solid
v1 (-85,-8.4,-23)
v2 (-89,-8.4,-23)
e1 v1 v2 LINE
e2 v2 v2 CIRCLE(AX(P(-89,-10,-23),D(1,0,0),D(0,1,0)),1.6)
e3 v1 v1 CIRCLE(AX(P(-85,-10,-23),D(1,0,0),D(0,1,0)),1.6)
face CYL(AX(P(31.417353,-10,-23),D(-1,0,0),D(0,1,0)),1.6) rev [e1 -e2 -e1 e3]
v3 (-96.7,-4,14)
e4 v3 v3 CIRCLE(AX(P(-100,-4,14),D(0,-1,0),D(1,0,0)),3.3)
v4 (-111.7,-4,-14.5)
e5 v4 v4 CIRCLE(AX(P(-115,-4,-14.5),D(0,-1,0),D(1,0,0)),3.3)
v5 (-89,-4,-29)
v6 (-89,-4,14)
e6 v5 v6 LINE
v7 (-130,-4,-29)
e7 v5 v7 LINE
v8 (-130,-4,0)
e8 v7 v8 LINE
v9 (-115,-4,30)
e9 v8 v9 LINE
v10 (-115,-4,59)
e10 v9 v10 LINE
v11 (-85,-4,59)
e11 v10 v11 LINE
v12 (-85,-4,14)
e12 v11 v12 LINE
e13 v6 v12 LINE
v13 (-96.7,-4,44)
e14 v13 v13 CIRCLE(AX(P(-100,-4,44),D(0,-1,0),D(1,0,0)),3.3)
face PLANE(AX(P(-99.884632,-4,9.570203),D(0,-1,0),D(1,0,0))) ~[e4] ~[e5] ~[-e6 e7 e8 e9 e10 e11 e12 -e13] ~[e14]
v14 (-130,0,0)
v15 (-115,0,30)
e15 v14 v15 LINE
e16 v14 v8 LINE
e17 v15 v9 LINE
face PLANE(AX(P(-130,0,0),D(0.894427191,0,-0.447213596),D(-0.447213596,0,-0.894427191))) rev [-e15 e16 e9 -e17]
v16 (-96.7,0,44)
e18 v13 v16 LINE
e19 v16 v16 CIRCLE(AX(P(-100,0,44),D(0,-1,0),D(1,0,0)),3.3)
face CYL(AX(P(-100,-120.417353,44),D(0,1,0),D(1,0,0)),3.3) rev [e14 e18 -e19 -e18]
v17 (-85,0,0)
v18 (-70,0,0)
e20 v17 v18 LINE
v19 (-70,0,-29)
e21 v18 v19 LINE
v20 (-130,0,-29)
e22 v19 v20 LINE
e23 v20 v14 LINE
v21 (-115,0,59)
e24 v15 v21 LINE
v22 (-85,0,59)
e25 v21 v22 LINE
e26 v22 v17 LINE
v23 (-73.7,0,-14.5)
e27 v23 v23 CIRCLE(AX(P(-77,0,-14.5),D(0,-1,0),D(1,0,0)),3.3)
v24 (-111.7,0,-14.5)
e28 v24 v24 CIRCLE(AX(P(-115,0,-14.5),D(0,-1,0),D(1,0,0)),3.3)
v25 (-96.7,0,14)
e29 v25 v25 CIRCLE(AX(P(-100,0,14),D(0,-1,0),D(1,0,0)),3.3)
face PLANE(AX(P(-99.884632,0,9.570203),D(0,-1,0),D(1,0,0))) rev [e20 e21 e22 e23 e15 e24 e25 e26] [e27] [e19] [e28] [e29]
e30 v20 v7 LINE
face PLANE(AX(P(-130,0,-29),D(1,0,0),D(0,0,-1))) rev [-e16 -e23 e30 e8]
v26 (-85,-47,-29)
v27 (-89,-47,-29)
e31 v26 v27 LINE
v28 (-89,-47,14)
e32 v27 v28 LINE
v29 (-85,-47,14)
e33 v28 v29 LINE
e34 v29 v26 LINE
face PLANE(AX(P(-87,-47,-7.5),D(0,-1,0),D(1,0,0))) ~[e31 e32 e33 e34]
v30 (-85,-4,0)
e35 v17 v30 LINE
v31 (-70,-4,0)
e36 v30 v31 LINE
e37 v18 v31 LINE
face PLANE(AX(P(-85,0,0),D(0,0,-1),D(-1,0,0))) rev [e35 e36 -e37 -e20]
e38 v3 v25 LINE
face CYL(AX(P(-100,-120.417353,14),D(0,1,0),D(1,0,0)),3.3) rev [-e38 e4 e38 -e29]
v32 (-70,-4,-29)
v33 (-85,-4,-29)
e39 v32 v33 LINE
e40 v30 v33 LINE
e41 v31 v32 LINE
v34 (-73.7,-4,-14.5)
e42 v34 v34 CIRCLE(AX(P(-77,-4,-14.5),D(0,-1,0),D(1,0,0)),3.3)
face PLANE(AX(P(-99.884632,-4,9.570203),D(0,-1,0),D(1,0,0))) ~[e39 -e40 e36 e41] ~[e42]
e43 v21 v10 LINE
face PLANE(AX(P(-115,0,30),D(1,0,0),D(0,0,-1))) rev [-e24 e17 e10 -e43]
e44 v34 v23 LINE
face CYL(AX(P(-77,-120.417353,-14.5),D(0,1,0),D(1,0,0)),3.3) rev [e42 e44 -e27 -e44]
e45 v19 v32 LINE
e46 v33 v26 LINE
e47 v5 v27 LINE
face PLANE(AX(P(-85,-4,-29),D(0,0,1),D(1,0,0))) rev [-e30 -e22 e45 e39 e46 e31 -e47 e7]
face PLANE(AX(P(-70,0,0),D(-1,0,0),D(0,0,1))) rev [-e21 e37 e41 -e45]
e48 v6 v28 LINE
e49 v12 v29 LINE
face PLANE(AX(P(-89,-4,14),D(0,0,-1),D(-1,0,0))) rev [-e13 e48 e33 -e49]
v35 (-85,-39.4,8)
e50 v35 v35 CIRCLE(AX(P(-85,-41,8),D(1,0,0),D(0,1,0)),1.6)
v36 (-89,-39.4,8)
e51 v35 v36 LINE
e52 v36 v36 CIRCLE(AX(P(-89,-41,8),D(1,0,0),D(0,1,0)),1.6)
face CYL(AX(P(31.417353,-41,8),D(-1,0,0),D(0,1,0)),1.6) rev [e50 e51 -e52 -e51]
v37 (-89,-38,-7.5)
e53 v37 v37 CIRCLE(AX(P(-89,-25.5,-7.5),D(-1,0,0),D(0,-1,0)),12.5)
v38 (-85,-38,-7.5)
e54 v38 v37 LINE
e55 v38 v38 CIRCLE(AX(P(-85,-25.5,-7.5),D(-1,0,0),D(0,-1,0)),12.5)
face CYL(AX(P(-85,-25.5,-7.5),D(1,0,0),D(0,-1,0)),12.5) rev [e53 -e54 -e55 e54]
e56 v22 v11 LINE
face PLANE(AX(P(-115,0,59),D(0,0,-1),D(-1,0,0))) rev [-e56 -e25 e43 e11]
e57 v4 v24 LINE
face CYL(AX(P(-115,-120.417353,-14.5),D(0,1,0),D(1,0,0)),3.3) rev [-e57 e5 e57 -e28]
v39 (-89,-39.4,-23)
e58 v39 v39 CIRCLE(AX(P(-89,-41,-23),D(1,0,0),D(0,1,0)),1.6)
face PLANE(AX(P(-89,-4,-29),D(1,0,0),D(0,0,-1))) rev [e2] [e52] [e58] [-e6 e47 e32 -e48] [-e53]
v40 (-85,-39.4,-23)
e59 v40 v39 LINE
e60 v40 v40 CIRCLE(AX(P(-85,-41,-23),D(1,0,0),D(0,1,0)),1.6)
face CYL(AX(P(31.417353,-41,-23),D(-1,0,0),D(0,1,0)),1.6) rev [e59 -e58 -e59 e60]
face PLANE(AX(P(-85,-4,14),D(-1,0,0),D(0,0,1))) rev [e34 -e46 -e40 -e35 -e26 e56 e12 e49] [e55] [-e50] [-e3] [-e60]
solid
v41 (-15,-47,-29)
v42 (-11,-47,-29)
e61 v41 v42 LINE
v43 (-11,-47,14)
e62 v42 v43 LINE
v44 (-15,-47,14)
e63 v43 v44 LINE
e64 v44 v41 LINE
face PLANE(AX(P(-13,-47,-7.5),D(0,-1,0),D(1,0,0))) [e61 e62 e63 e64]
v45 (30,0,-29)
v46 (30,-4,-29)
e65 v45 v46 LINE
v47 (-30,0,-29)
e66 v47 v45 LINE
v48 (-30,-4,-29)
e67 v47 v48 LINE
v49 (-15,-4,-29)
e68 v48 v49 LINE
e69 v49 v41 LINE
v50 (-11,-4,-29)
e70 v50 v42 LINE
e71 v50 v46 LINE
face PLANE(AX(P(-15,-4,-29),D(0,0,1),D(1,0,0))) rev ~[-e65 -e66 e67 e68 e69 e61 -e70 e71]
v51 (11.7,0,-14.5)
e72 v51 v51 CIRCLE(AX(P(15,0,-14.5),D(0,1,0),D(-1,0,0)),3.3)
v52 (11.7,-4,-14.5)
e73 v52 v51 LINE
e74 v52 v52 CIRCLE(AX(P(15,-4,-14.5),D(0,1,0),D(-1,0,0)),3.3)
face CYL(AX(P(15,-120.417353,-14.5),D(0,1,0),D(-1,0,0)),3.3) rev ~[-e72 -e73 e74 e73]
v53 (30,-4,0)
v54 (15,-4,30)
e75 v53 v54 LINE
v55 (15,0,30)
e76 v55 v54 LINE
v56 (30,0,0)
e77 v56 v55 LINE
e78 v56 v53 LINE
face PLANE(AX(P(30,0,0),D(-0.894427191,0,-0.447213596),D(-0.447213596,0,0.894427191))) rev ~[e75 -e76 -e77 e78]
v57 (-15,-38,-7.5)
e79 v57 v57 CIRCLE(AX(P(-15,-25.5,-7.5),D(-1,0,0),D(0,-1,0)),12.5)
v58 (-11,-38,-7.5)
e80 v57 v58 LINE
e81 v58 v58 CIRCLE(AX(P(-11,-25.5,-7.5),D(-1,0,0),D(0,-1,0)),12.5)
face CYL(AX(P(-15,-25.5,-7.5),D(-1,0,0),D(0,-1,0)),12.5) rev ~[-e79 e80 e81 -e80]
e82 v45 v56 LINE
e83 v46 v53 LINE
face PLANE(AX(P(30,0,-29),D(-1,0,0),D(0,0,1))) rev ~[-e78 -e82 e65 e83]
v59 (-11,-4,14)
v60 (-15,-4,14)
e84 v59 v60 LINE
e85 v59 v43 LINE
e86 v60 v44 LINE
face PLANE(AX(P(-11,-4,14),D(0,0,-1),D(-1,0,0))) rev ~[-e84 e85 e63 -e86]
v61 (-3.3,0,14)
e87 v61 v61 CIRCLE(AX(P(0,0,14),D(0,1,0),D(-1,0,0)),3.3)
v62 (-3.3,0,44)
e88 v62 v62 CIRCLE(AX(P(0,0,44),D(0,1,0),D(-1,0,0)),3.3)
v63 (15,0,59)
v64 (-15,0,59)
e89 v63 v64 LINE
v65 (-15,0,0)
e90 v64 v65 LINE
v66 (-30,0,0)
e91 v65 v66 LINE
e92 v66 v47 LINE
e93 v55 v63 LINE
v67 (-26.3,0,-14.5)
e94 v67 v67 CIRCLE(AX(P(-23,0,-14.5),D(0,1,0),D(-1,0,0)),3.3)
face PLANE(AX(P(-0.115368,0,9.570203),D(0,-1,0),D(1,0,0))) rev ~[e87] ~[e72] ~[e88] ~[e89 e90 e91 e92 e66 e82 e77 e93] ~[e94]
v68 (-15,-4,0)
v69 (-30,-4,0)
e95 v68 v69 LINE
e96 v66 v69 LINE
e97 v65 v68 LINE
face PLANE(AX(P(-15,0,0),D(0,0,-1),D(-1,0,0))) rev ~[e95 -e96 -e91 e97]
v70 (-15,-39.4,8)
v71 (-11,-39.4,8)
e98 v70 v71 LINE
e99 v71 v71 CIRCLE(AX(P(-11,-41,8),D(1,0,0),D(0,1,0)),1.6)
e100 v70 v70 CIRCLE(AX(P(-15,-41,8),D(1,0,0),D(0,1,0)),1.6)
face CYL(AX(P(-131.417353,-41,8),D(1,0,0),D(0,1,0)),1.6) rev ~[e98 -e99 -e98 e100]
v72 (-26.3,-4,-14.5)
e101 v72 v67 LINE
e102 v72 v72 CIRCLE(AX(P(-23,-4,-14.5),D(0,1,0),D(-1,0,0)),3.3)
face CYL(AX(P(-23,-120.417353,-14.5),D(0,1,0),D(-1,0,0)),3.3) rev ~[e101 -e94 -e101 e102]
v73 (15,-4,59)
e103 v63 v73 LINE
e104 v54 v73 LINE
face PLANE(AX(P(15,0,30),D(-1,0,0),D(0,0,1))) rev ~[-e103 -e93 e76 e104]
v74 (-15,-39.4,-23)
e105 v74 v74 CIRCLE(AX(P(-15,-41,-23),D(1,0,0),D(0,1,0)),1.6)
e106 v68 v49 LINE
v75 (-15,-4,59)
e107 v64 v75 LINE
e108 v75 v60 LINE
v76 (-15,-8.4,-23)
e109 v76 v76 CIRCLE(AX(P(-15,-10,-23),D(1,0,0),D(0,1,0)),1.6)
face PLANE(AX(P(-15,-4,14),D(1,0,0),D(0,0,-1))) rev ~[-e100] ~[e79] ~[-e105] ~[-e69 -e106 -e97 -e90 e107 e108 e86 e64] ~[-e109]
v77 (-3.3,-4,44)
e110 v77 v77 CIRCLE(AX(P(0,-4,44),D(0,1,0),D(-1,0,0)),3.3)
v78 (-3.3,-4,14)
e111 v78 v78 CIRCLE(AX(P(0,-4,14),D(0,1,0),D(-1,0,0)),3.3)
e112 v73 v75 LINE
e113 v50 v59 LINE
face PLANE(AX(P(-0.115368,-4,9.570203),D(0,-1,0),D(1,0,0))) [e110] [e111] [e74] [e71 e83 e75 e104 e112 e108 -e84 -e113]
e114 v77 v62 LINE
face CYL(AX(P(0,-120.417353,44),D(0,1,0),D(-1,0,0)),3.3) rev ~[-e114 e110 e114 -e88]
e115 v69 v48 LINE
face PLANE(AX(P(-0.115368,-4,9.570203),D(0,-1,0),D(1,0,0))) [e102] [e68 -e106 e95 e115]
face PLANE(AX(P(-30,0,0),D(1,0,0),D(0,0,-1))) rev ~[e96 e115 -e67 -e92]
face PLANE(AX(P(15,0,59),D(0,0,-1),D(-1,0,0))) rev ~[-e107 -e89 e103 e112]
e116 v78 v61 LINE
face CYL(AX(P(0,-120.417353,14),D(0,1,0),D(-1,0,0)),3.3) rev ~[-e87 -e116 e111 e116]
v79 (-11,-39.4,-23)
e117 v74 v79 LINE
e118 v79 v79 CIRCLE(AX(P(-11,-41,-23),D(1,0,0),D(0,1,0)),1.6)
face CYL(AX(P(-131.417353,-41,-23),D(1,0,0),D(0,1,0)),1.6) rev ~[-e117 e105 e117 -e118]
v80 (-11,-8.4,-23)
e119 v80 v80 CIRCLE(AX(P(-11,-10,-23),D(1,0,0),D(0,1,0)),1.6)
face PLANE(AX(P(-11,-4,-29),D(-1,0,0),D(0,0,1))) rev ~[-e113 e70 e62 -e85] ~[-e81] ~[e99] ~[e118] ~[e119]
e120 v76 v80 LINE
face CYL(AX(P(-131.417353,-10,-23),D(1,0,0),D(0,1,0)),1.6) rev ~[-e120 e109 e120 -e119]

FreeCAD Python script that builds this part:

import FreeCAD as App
import Part
import Sketcher

V = App.Vector
Q = App.Units.Quantity


def add_polygon(sketch, points):
    """Adds a closed chain of lines whose ends are joined by coincident constraints."""
    first, n = sketch.GeometryCount, len(points)
    for a, b in zip(points, points[1:] + points[:1]):
        sketch.addGeometry(Part.LineSegment(App.Vector(*a, 0), App.Vector(*b, 0)), False)
    for i in range(n):
        sketch.addConstraint(Sketcher.Constraint("Coincident", first + i, 2, first + (i + 1) % n, 1))

doc = App.newDocument("Part")
body = doc.addObject("PartDesign::Body", "Body")

sketch1 = body.newObject("Sketcher::SketchObject", "Sketch")
sketch1.AttachmentSupport = (doc.getObject("XZ_Plane"), [""])
sketch1.MapMode = "FlatFace"
add_polygon(sketch1, [(-15, 0), (-30, 0), (-30, -29), (30, -29), (30, 0), (15, 30), (15, 59), (-15, 59)])
sketch1.addConstraint(Sketcher.Constraint("Horizontal", 0))
sketch1.addConstraint(Sketcher.Constraint("Vertical", 1))
sketch1.addConstraint(Sketcher.Constraint("Horizontal", 2))
sketch1.addConstraint(Sketcher.Constraint("Vertical", 3))
sketch1.addConstraint(Sketcher.Constraint("Vertical", 5))
sketch1.addConstraint(Sketcher.Constraint("Horizontal", 6))
sketch1.addConstraint(Sketcher.Constraint("Vertical", 7))
sketch1.addConstraint(Sketcher.Constraint("Symmetric", 0, 2, 3, 2, -1, 1))
sketch1.addConstraint(Sketcher.Constraint("PointOnObject", 0, 2, -1))
sketch1.addConstraint(Sketcher.Constraint("Equal", 3, 5))
sketch1.addConstraint(Sketcher.Constraint("DistanceX", 0, 2, 0, 1, Q("15 mm")))
sketch1.addConstraint(Sketcher.Constraint("DistanceX", 2, 1, 2, 2, Q("60 mm")))
sketch1.addConstraint(Sketcher.Constraint("DistanceX", 6, 2, 6, 1, Q("30 mm")))
sketch1.addConstraint(Sketcher.Constraint("DistanceY", 1, 2, 1, 1, Q("29 mm")))
sketch1.addConstraint(Sketcher.Constraint("DistanceY", 7, 2, 7, 1, Q("59 mm")))
pad1 = body.newObject("PartDesign::Pad", "Pad")
pad1.Profile = sketch1
pad1.Length = 4

sketch2 = body.newObject("Sketcher::SketchObject", "Sketch001")
sketch2.AttachmentSupport = (doc.getObject("XZ_Plane"), [""])
sketch2.MapMode = "FlatFace"
sketch2.AttachmentOffset = App.Placement(V(0, 0, 4), App.Rotation())
add_polygon(sketch2, [(-11, 14), (-15, 14), (-15, -29), (-11, -29)])
sketch2.addConstraint(Sketcher.Constraint("Horizontal", 0))
sketch2.addConstraint(Sketcher.Constraint("Vertical", 1))
sketch2.addConstraint(Sketcher.Constraint("Horizontal", 2))
sketch2.addConstraint(Sketcher.Constraint("Vertical", 3))
sketch2.addConstraint(Sketcher.Constraint("DistanceX", 0, 2, 0, 1, Q("4 mm")))
sketch2.addConstraint(Sketcher.Constraint("DistanceY", 1, 2, 1, 1, Q("43 mm")))
sketch2.addConstraint(Sketcher.Constraint("DistanceX", 0, 2, -1, 1, Q("15 mm")))
sketch2.addConstraint(Sketcher.Constraint("DistanceY", -1, 1, 0, 2, Q("14 mm")))
pad2 = body.newObject("PartDesign::Pad", "Pad001")
pad2.Profile = sketch2
pad2.Length = 43

sketch3 = body.newObject("Sketcher::SketchObject", "Sketch002")
sketch3.AttachmentSupport = (doc.getObject("YZ_Plane"), [""])
sketch3.MapMode = "FlatFace"
sketch3.AttachmentOffset = App.Placement(V(0, 0, -15), App.Rotation())
sketch3.addGeometry(Part.Circle(V(-25.5, -7.5, 0), V(0, 0, 1), 12.5), False)
sketch3.addConstraint(Sketcher.Constraint("Diameter", 0, Q("25 mm")))
sketch3.addConstraint(Sketcher.Constraint("DistanceX", 0, 3, -1, 1, Q("25.5 mm")))
sketch3.addConstraint(Sketcher.Constraint("DistanceY", 0, 3, -1, 1, Q("7.5 mm")))
pocket1 = body.newObject("PartDesign::Pocket", "Pocket")
pocket1.Profile = sketch3
pocket1.Type = "ThroughAll"
pocket1.Reversed = True

sketch4 = body.newObject("Sketcher::SketchObject", "Sketch003")
sketch4.AttachmentSupport = (doc.getObject("YZ_Plane"), [""])
sketch4.MapMode = "FlatFace"
sketch4.AttachmentOffset = App.Placement(V(0, 0, -15), App.Rotation())
sketch4.addGeometry(Part.Circle(V(-41, 8, 0), V(0, 0, 1), 1.6), False)
sketch4.addGeometry(Part.Circle(V(-41, -23, 0), V(0, 0, 1), 1.6), False)
sketch4.addGeometry(Part.Circle(V(-10, -23, 0), V(0, 0, 1), 1.6), False)
sketch4.addConstraint(Sketcher.Constraint("Equal", 0, 1))
sketch4.addConstraint(Sketcher.Constraint("Equal", 1, 2))
sketch4.addConstraint(Sketcher.Constraint("Horizontal", 1, 3, 2, 3))
sketch4.addConstraint(Sketcher.Constraint("Vertical", 0, 3, 1, 3))
sketch4.addConstraint(Sketcher.Constraint("Diameter", 0, Q("3.2 mm")))
sketch4.addConstraint(Sketcher.Constraint("DistanceX", 0, 3, -1, 1, Q("41 mm")))
sketch4.addConstraint(Sketcher.Constraint("DistanceY", -1, 1, 0, 3, Q("8 mm")))
sketch4.addConstraint(Sketcher.Constraint("DistanceY", 1, 3, -1, 1, Q("23 mm")))
sketch4.addConstraint(Sketcher.Constraint("DistanceX", 2, 3, -1, 1, Q("10 mm")))
doc.recompute()
hole = body.newObject("PartDesign::Hole", "Hole")
hole.Profile = sketch4
hole.ThreadType = "None"
hole.Diameter = 3.2
hole.DepthType = "ThroughAll"
hole.Reversed = True

sketch5 = body.newObject("Sketcher::SketchObject", "Sketch004")
sketch5.AttachmentSupport = (doc.getObject("XZ_Plane"), [""])
sketch5.MapMode = "FlatFace"
sketch5.AttachmentOffset = App.Placement(V(0, 0, 4), App.Rotation())
sketch5.addGeometry(Part.Circle(V(0, 44, 0), V(0, 0, 1), 3.3), False)
sketch5.addGeometry(Part.Circle(V(15, -14.5, 0), V(0, 0, 1), 3.3), False)
sketch5.addGeometry(Part.Circle(V(-23, -14.5, 0), V(0, 0, 1), 3.3), False)
sketch5.addGeometry(Part.Circle(V(0, 14, 0), V(0, 0, 1), 3.3), False)
sketch5.addConstraint(Sketcher.Constraint("Equal", 0, 1))
sketch5.addConstraint(Sketcher.Constraint("Equal", 1, 2))
sketch5.addConstraint(Sketcher.Constraint("Equal", 2, 3))
sketch5.addConstraint(Sketcher.Constraint("PointOnObject", 0, 3, -2))
sketch5.addConstraint(Sketcher.Constraint("PointOnObject", 3, 3, -2))
sketch5.addConstraint(Sketcher.Constraint("Horizontal", 1, 3, 2, 3))
sketch5.addConstraint(Sketcher.Constraint("Diameter", 0, Q("6.6 mm")))
sketch5.addConstraint(Sketcher.Constraint("DistanceY", -1, 1, 0, 3, Q("44 mm")))
sketch5.addConstraint(Sketcher.Constraint("DistanceX", -1, 1, 1, 3, Q("15 mm")))
sketch5.addConstraint(Sketcher.Constraint("DistanceX", 2, 3, -1, 1, Q("23 mm")))
sketch5.addConstraint(Sketcher.Constraint("DistanceY", -1, 1, 3, 3, Q("14 mm")))
sketch5.addConstraint(Sketcher.Constraint("DistanceY", 1, 3, -1, 1, Q("14.5 mm")))
doc.recompute()
hole2 = body.newObject("PartDesign::Hole", "Hole001")
hole2.Profile = sketch5
hole2.ThreadType = "None"
hole2.Diameter = 6.6
hole2.DepthType = "ThroughAll"
body2 = doc.addObject("PartDesign::Body", "Body001")
doc.recompute()

mirroring = doc.addObject("Part::Mirroring", "Mirroring")
mirroring.Source = body
mirroring.Base = V(-50, 0, 0)
mirroring.Normal = V(1, 0, 0)
body2.BaseFeature = mirroring
doc.recompute()
mirroring.Visibility = False

doc.recompute()
